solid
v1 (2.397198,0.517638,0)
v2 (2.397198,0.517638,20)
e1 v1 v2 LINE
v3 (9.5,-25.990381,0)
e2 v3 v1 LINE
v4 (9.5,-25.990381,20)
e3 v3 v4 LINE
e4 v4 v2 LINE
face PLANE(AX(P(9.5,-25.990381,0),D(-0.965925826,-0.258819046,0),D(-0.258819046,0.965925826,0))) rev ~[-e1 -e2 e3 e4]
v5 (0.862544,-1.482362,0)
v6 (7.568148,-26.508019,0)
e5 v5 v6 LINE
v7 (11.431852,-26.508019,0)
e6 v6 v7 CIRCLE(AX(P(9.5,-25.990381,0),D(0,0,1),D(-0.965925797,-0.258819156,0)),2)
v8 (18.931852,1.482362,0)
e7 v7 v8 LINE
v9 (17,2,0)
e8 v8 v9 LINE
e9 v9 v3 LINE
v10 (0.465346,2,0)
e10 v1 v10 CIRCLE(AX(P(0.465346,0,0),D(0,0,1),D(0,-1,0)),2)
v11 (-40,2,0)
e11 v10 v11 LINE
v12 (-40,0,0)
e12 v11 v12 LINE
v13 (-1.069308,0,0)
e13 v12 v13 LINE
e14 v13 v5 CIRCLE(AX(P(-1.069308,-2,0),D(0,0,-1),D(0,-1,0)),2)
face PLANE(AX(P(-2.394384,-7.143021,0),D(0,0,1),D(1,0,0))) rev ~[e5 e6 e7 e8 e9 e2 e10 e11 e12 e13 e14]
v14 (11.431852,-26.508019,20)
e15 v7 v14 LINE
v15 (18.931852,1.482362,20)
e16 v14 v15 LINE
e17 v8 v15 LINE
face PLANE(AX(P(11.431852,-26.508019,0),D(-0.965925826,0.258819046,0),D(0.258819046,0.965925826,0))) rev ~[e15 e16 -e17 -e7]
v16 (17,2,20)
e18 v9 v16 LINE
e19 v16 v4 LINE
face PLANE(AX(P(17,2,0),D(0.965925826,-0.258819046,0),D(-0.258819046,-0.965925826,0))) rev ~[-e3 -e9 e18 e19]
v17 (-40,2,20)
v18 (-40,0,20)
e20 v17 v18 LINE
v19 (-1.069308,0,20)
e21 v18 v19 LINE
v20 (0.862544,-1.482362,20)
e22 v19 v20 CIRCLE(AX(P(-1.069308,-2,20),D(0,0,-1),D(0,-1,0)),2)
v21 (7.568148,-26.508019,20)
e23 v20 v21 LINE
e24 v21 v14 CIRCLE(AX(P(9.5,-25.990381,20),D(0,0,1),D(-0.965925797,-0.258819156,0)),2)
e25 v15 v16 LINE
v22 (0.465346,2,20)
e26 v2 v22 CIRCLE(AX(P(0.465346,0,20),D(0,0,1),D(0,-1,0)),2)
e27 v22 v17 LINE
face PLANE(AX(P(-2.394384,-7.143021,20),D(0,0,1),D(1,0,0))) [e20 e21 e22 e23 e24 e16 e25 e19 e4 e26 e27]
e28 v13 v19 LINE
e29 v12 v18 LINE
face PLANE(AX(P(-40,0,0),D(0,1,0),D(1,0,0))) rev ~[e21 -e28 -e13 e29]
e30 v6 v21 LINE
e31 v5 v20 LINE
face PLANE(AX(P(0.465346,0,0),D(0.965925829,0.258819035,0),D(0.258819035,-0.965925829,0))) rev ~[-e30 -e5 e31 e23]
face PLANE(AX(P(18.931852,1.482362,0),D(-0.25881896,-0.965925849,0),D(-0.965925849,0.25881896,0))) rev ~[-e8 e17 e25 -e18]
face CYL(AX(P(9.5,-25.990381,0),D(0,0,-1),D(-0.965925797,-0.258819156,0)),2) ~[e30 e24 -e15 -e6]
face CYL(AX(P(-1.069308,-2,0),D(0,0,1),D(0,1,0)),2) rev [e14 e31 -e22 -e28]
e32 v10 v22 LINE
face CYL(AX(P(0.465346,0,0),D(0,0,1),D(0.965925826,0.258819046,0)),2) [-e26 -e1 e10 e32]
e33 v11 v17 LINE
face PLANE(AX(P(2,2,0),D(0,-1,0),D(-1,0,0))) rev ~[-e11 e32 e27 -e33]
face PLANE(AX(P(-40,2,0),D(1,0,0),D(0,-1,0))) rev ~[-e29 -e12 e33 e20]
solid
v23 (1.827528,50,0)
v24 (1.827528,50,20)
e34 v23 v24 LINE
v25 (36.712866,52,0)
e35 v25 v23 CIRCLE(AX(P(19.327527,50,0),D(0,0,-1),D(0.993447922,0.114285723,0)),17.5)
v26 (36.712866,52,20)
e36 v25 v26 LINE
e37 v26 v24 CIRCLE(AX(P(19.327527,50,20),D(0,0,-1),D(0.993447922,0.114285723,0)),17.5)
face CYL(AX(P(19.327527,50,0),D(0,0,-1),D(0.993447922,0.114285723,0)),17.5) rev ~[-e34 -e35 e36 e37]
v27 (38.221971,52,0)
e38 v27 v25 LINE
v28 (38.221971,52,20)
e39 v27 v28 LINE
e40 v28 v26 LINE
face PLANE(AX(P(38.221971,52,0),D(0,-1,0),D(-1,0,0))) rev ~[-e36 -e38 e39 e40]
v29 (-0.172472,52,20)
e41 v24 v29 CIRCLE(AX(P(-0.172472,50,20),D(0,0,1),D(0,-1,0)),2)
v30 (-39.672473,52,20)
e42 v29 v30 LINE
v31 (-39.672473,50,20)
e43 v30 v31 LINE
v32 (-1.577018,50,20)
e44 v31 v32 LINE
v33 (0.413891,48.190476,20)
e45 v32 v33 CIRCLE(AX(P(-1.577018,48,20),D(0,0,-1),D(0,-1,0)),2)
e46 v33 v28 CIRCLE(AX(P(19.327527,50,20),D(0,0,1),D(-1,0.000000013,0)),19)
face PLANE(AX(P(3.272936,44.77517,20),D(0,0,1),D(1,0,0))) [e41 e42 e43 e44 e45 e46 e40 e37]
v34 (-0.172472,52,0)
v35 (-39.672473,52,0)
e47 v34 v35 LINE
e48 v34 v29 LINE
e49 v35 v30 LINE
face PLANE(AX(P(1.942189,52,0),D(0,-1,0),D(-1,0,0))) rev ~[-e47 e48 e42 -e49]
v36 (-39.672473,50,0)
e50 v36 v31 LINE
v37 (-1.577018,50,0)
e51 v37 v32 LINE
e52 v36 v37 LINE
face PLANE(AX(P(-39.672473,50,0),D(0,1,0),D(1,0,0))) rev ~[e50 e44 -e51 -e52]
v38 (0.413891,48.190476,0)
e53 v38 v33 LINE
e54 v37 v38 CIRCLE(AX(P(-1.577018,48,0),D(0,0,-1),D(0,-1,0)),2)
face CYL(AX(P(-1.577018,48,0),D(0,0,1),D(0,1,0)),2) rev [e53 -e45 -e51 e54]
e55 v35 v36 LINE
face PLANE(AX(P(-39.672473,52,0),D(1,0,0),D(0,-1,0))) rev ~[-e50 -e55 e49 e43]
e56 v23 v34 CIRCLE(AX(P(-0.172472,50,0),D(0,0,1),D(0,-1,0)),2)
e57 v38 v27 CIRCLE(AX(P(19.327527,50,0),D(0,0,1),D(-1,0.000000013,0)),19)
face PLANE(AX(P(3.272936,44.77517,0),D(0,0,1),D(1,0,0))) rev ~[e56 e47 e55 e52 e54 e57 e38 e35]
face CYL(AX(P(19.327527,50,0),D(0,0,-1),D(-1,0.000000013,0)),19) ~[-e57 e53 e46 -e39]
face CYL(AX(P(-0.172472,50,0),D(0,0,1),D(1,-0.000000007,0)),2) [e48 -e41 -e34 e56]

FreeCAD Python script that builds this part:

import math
import FreeCAD as App
import Part
import Sketcher

V = App.Vector
Q = App.Units.Quantity


def edges_at(feature, points):
    """Names of the edges that pass closest to the given points."""
    edges = feature.Shape.Edges
    near = lambda p: min(range(len(edges)), key=lambda i: edges[i].distToShape(Part.Vertex(*p))[0])
    return sorted({f"Edge{near(p) + 1}" for p in points})

doc = App.newDocument("Part")
body = doc.addObject("PartDesign::Body", "Body")

sketch1 = body.newObject("Sketcher::SketchObject", "Sketch")
sketch1.AttachmentSupport = (doc.getObject("XY_Plane"), [""])
sketch1.MapMode = "FlatFace"
sketch1.addGeometry(Part.LineSegment(V(-40, 0, 0), V(0.465346, 0, 0)), False)
sketch1.addGeometry(Part.LineSegment(V(0.465346, 0, 0), V(7.568148, -26.508019, 0)), False)
sketch1.addGeometry(Part.ArcOfCircle(Part.Circle(V(9.5, -25.990381, 0), V(0, 0, 1), 2), math.radians(-164.999993), math.radians(-15.000007)), False)
sketch1.addGeometry(Part.LineSegment(V(11.431852, -26.508019, 0), V(18.931852, 1.482362, 0)), False)
sketch1.addGeometry(Part.LineSegment(V(18.931852, 1.482362, 0), V(17, 2, 0)), False)
sketch1.addGeometry(Part.LineSegment(V(17, 2, 0), V(9.5, -25.990381, 0)), False)
sketch1.addGeometry(Part.LineSegment(V(9.5, -25.990381, 0), V(2, 2, 0)), False)
sketch1.addGeometry(Part.LineSegment(V(2, 2, 0), V(-40, 2, 0)), False)
sketch1.addGeometry(Part.LineSegment(V(-40, 2, 0), V(-40, 0, 0)), False)
sketch1.addConstraint(Sketcher.Constraint("Coincident", 0, 2, 1, 1))
sketch1.addConstraint(Sketcher.Constraint("Tangent", 1, 2, 2, 1))
sketch1.addConstraint(Sketcher.Constraint("Tangent", 2, 2, 3, 1))
sketch1.addConstraint(Sketcher.Constraint("Coincident", 3, 2, 4, 1))
sketch1.addConstraint(Sketcher.Constraint("Coincident", 4, 2, 5, 1))
sketch1.addConstraint(Sketcher.Constraint("Coincident", 5, 2, 6, 1))
sketch1.addConstraint(Sketcher.Constraint("Coincident", 6, 2, 7, 1))
sketch1.addConstraint(Sketcher.Constraint("Coincident", 7, 2, 8, 1))
sketch1.addConstraint(Sketcher.Constraint("Coincident", 8, 2, 0, 1))
sketch1.addConstraint(Sketcher.Constraint("Horizontal", 0))
sketch1.addConstraint(Sketcher.Constraint("Horizontal", 7))
sketch1.addConstraint(Sketcher.Constraint("Vertical", 8))
sketch1.addConstraint(Sketcher.Constraint("Coincident", 5, 2, 2, 3))
sketch1.addConstraint(Sketcher.Constraint("PointOnObject", 0, 2, -1))
sketch1.addConstraint(Sketcher.Constraint("Perpendicular", 3, 4))
sketch1.addConstraint(Sketcher.Constraint("Perpendicular", 4, 5))
sketch1.addConstraint(Sketcher.Constraint("Parallel", 1, 6))
sketch1.addConstraint(Sketcher.Constraint("Horizontal", 1, 2, 2, 2))
sketch1.addConstraint(Sketcher.Constraint("Horizontal", 4, 2, 6, 2))
sketch1.addConstraint(Sketcher.Constraint("Radius", 2, Q("2 mm")))
sketch1.addConstraint(Sketcher.Constraint("DistanceX", 7, 2, 7, 1, Q("42 mm")))
sketch1.addConstraint(Sketcher.Constraint("DistanceY", 8, 2, 8, 1, Q("2 mm")))
sketch1.addConstraint(Sketcher.Constraint("Angle", 1, Q("-75.000001 deg")))
sketch1.addConstraint(Sketcher.Constraint("DistanceX", -1, 1, 4, 2, Q("17 mm")))
sketch1.addConstraint(Sketcher.Constraint("DistanceX", -1, 1, 6, 2, Q("2 mm")))
pad1 = body.newObject("PartDesign::Pad", "Pad")
pad1.Profile = sketch1
pad1.Length = 20
doc.recompute()

fillet = body.newObject("PartDesign::Fillet", "Fillet")
fillet.Base = (pad1, edges_at(pad1, [(2, 2, 10), (0.465, 0, 10)]))
fillet.Radius = 2
body2 = doc.addObject("PartDesign::Body", "Body001")

sketch2 = body2.newObject("Sketcher::SketchObject", "Sketch001")
sketch2.AttachmentSupport = (doc.getObject("XY_Plane001"), [""])
sketch2.MapMode = "FlatFace"
sketch2.addGeometry(Part.LineSegment(V(-39.672473, 50, 0), V(0.327527, 50, 0)), False)
sketch2.addGeometry(Part.ArcOfCircle(Part.Circle(V(19.327527, 50, 0), V(0, 0, 1), 19), math.radians(179.999999), math.radians(366.042329)), False)
sketch2.addGeometry(Part.LineSegment(V(38.221971, 52, 0), V(36.712866, 52, 0)), False)
sketch2.addGeometry(Part.ArcOfCircle(Part.Circle(V(19.327527, 50, 0), V(0, 0, 1), 17.5), math.radians(173.437572), math.radians(366.562428)), False)
sketch2.addGeometry(Part.LineSegment(V(1.942189, 52, 0), V(-39.672473, 52, 0)), False)
sketch2.addGeometry(Part.LineSegment(V(-39.672473, 52, 0), V(-39.672473, 50, 0)), False)
sketch2.addConstraint(Sketcher.Constraint("Coincident", 0, 2, 1, 1))
sketch2.addConstraint(Sketcher.Constraint("Coincident", 1, 2, 2, 1))
sketch2.addConstraint(Sketcher.Constraint("Coincident", 2, 2, 3, 2))
sketch2.addConstraint(Sketcher.Constraint("Coincident", 3, 1, 4, 1))
sketch2.addConstraint(Sketcher.Constraint("Coincident", 4, 2, 5, 1))
sketch2.addConstraint(Sketcher.Constraint("Coincident", 5, 2, 0, 1))
sketch2.addConstraint(Sketcher.Constraint("Horizontal", 0))
sketch2.addConstraint(Sketcher.Constraint("Horizontal", 2))
sketch2.addConstraint(Sketcher.Constraint("Horizontal", 4))
sketch2.addConstraint(Sketcher.Constraint("Vertical", 5))
sketch2.addConstraint(Sketcher.Constraint("Coincident", 3, 3, 1, 3))
sketch2.addConstraint(Sketcher.Constraint("Horizontal", 3, 3, 0, 2))
sketch2.addConstraint(Sketcher.Constraint("Horizontal", 2, 2, 3, 1))
sketch2.addConstraint(Sketcher.Constraint("Radius", 1, Q("19 mm")))
sketch2.addConstraint(Sketcher.Constraint("Radius", 3, Q("17.5 mm")))
sketch2.addConstraint(Sketcher.Constraint("DistanceX", 0, 1, 0, 2, Q("40 mm")))
sketch2.addConstraint(Sketcher.Constraint("DistanceY", 5, 2, 5, 1, Q("2 mm")))
sketch2.addConstraint(Sketcher.Constraint("DistanceY", -1, 1, 1, 3, Q("50 mm")))
sketch2.addConstraint(Sketcher.Constraint("DistanceX", -1, 1, 1, 2, Q("38.221971 mm")))
pad2 = body2.newObject("PartDesign::Pad", "Pad001")
pad2.Profile = sketch2
pad2.Length = 20
doc.recompute()

fillet2 = body2.newObject("PartDesign::Fillet", "Fillet001")
fillet2.Base = (pad2, edges_at(pad2, [(1.942, 52, 10), (0.328, 50, 10)]))
fillet2.Radius = 2

doc.recompute()
